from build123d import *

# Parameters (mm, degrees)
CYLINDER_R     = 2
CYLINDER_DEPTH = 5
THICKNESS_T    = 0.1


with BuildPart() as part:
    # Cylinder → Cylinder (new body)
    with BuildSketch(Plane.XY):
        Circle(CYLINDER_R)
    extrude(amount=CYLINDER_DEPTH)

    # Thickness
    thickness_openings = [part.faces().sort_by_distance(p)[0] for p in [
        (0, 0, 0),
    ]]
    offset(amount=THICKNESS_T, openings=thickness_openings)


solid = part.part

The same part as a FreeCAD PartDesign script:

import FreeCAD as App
import Part
import Sketcher
from FreeCAD import Vector


def faces_at(feature, points):
    """Names of the faces that lie closest to the given points."""
    faces = feature.Shape.Faces
    near = lambda p: min(range(len(faces)), key=lambda i: faces[i].distToShape(Part.Vertex(*p))[0])
    return sorted({f"Face{near(p) + 1}" for p in points})

doc = App.newDocument("Part")
body = doc.addObject("PartDesign::Body", "Body")

sketch1 = body.newObject("Sketcher::SketchObject", "Sketch")
sketch1.AttachmentSupport = (doc.getObject("XY_Plane"), [""])
sketch1.MapMode = "FlatFace"
sketch1.addGeometry(Part.Circle(Vector(0, 0, 0), Vector(0, 0, 1), 2), False)
sketch1.addConstraint(Sketcher.Constraint("Coincident", 0, 3, -1, 1))
sketch1.addConstraint(Sketcher.Constraint("Diameter", 0, 4.0))
pad1 = body.newObject("PartDesign::Pad", "Pad")
pad1.Profile = sketch1
pad1.Length = 5
doc.recompute()

thickness = body.newObject("PartDesign::Thickness", "Thickness")
thickness.Base = (pad1, faces_at(pad1, [(0, 0, 0)]))
thickness.Value = 0.1
thickness.Reversed = False
thickness.Join = "Arc"

doc.recompute()
